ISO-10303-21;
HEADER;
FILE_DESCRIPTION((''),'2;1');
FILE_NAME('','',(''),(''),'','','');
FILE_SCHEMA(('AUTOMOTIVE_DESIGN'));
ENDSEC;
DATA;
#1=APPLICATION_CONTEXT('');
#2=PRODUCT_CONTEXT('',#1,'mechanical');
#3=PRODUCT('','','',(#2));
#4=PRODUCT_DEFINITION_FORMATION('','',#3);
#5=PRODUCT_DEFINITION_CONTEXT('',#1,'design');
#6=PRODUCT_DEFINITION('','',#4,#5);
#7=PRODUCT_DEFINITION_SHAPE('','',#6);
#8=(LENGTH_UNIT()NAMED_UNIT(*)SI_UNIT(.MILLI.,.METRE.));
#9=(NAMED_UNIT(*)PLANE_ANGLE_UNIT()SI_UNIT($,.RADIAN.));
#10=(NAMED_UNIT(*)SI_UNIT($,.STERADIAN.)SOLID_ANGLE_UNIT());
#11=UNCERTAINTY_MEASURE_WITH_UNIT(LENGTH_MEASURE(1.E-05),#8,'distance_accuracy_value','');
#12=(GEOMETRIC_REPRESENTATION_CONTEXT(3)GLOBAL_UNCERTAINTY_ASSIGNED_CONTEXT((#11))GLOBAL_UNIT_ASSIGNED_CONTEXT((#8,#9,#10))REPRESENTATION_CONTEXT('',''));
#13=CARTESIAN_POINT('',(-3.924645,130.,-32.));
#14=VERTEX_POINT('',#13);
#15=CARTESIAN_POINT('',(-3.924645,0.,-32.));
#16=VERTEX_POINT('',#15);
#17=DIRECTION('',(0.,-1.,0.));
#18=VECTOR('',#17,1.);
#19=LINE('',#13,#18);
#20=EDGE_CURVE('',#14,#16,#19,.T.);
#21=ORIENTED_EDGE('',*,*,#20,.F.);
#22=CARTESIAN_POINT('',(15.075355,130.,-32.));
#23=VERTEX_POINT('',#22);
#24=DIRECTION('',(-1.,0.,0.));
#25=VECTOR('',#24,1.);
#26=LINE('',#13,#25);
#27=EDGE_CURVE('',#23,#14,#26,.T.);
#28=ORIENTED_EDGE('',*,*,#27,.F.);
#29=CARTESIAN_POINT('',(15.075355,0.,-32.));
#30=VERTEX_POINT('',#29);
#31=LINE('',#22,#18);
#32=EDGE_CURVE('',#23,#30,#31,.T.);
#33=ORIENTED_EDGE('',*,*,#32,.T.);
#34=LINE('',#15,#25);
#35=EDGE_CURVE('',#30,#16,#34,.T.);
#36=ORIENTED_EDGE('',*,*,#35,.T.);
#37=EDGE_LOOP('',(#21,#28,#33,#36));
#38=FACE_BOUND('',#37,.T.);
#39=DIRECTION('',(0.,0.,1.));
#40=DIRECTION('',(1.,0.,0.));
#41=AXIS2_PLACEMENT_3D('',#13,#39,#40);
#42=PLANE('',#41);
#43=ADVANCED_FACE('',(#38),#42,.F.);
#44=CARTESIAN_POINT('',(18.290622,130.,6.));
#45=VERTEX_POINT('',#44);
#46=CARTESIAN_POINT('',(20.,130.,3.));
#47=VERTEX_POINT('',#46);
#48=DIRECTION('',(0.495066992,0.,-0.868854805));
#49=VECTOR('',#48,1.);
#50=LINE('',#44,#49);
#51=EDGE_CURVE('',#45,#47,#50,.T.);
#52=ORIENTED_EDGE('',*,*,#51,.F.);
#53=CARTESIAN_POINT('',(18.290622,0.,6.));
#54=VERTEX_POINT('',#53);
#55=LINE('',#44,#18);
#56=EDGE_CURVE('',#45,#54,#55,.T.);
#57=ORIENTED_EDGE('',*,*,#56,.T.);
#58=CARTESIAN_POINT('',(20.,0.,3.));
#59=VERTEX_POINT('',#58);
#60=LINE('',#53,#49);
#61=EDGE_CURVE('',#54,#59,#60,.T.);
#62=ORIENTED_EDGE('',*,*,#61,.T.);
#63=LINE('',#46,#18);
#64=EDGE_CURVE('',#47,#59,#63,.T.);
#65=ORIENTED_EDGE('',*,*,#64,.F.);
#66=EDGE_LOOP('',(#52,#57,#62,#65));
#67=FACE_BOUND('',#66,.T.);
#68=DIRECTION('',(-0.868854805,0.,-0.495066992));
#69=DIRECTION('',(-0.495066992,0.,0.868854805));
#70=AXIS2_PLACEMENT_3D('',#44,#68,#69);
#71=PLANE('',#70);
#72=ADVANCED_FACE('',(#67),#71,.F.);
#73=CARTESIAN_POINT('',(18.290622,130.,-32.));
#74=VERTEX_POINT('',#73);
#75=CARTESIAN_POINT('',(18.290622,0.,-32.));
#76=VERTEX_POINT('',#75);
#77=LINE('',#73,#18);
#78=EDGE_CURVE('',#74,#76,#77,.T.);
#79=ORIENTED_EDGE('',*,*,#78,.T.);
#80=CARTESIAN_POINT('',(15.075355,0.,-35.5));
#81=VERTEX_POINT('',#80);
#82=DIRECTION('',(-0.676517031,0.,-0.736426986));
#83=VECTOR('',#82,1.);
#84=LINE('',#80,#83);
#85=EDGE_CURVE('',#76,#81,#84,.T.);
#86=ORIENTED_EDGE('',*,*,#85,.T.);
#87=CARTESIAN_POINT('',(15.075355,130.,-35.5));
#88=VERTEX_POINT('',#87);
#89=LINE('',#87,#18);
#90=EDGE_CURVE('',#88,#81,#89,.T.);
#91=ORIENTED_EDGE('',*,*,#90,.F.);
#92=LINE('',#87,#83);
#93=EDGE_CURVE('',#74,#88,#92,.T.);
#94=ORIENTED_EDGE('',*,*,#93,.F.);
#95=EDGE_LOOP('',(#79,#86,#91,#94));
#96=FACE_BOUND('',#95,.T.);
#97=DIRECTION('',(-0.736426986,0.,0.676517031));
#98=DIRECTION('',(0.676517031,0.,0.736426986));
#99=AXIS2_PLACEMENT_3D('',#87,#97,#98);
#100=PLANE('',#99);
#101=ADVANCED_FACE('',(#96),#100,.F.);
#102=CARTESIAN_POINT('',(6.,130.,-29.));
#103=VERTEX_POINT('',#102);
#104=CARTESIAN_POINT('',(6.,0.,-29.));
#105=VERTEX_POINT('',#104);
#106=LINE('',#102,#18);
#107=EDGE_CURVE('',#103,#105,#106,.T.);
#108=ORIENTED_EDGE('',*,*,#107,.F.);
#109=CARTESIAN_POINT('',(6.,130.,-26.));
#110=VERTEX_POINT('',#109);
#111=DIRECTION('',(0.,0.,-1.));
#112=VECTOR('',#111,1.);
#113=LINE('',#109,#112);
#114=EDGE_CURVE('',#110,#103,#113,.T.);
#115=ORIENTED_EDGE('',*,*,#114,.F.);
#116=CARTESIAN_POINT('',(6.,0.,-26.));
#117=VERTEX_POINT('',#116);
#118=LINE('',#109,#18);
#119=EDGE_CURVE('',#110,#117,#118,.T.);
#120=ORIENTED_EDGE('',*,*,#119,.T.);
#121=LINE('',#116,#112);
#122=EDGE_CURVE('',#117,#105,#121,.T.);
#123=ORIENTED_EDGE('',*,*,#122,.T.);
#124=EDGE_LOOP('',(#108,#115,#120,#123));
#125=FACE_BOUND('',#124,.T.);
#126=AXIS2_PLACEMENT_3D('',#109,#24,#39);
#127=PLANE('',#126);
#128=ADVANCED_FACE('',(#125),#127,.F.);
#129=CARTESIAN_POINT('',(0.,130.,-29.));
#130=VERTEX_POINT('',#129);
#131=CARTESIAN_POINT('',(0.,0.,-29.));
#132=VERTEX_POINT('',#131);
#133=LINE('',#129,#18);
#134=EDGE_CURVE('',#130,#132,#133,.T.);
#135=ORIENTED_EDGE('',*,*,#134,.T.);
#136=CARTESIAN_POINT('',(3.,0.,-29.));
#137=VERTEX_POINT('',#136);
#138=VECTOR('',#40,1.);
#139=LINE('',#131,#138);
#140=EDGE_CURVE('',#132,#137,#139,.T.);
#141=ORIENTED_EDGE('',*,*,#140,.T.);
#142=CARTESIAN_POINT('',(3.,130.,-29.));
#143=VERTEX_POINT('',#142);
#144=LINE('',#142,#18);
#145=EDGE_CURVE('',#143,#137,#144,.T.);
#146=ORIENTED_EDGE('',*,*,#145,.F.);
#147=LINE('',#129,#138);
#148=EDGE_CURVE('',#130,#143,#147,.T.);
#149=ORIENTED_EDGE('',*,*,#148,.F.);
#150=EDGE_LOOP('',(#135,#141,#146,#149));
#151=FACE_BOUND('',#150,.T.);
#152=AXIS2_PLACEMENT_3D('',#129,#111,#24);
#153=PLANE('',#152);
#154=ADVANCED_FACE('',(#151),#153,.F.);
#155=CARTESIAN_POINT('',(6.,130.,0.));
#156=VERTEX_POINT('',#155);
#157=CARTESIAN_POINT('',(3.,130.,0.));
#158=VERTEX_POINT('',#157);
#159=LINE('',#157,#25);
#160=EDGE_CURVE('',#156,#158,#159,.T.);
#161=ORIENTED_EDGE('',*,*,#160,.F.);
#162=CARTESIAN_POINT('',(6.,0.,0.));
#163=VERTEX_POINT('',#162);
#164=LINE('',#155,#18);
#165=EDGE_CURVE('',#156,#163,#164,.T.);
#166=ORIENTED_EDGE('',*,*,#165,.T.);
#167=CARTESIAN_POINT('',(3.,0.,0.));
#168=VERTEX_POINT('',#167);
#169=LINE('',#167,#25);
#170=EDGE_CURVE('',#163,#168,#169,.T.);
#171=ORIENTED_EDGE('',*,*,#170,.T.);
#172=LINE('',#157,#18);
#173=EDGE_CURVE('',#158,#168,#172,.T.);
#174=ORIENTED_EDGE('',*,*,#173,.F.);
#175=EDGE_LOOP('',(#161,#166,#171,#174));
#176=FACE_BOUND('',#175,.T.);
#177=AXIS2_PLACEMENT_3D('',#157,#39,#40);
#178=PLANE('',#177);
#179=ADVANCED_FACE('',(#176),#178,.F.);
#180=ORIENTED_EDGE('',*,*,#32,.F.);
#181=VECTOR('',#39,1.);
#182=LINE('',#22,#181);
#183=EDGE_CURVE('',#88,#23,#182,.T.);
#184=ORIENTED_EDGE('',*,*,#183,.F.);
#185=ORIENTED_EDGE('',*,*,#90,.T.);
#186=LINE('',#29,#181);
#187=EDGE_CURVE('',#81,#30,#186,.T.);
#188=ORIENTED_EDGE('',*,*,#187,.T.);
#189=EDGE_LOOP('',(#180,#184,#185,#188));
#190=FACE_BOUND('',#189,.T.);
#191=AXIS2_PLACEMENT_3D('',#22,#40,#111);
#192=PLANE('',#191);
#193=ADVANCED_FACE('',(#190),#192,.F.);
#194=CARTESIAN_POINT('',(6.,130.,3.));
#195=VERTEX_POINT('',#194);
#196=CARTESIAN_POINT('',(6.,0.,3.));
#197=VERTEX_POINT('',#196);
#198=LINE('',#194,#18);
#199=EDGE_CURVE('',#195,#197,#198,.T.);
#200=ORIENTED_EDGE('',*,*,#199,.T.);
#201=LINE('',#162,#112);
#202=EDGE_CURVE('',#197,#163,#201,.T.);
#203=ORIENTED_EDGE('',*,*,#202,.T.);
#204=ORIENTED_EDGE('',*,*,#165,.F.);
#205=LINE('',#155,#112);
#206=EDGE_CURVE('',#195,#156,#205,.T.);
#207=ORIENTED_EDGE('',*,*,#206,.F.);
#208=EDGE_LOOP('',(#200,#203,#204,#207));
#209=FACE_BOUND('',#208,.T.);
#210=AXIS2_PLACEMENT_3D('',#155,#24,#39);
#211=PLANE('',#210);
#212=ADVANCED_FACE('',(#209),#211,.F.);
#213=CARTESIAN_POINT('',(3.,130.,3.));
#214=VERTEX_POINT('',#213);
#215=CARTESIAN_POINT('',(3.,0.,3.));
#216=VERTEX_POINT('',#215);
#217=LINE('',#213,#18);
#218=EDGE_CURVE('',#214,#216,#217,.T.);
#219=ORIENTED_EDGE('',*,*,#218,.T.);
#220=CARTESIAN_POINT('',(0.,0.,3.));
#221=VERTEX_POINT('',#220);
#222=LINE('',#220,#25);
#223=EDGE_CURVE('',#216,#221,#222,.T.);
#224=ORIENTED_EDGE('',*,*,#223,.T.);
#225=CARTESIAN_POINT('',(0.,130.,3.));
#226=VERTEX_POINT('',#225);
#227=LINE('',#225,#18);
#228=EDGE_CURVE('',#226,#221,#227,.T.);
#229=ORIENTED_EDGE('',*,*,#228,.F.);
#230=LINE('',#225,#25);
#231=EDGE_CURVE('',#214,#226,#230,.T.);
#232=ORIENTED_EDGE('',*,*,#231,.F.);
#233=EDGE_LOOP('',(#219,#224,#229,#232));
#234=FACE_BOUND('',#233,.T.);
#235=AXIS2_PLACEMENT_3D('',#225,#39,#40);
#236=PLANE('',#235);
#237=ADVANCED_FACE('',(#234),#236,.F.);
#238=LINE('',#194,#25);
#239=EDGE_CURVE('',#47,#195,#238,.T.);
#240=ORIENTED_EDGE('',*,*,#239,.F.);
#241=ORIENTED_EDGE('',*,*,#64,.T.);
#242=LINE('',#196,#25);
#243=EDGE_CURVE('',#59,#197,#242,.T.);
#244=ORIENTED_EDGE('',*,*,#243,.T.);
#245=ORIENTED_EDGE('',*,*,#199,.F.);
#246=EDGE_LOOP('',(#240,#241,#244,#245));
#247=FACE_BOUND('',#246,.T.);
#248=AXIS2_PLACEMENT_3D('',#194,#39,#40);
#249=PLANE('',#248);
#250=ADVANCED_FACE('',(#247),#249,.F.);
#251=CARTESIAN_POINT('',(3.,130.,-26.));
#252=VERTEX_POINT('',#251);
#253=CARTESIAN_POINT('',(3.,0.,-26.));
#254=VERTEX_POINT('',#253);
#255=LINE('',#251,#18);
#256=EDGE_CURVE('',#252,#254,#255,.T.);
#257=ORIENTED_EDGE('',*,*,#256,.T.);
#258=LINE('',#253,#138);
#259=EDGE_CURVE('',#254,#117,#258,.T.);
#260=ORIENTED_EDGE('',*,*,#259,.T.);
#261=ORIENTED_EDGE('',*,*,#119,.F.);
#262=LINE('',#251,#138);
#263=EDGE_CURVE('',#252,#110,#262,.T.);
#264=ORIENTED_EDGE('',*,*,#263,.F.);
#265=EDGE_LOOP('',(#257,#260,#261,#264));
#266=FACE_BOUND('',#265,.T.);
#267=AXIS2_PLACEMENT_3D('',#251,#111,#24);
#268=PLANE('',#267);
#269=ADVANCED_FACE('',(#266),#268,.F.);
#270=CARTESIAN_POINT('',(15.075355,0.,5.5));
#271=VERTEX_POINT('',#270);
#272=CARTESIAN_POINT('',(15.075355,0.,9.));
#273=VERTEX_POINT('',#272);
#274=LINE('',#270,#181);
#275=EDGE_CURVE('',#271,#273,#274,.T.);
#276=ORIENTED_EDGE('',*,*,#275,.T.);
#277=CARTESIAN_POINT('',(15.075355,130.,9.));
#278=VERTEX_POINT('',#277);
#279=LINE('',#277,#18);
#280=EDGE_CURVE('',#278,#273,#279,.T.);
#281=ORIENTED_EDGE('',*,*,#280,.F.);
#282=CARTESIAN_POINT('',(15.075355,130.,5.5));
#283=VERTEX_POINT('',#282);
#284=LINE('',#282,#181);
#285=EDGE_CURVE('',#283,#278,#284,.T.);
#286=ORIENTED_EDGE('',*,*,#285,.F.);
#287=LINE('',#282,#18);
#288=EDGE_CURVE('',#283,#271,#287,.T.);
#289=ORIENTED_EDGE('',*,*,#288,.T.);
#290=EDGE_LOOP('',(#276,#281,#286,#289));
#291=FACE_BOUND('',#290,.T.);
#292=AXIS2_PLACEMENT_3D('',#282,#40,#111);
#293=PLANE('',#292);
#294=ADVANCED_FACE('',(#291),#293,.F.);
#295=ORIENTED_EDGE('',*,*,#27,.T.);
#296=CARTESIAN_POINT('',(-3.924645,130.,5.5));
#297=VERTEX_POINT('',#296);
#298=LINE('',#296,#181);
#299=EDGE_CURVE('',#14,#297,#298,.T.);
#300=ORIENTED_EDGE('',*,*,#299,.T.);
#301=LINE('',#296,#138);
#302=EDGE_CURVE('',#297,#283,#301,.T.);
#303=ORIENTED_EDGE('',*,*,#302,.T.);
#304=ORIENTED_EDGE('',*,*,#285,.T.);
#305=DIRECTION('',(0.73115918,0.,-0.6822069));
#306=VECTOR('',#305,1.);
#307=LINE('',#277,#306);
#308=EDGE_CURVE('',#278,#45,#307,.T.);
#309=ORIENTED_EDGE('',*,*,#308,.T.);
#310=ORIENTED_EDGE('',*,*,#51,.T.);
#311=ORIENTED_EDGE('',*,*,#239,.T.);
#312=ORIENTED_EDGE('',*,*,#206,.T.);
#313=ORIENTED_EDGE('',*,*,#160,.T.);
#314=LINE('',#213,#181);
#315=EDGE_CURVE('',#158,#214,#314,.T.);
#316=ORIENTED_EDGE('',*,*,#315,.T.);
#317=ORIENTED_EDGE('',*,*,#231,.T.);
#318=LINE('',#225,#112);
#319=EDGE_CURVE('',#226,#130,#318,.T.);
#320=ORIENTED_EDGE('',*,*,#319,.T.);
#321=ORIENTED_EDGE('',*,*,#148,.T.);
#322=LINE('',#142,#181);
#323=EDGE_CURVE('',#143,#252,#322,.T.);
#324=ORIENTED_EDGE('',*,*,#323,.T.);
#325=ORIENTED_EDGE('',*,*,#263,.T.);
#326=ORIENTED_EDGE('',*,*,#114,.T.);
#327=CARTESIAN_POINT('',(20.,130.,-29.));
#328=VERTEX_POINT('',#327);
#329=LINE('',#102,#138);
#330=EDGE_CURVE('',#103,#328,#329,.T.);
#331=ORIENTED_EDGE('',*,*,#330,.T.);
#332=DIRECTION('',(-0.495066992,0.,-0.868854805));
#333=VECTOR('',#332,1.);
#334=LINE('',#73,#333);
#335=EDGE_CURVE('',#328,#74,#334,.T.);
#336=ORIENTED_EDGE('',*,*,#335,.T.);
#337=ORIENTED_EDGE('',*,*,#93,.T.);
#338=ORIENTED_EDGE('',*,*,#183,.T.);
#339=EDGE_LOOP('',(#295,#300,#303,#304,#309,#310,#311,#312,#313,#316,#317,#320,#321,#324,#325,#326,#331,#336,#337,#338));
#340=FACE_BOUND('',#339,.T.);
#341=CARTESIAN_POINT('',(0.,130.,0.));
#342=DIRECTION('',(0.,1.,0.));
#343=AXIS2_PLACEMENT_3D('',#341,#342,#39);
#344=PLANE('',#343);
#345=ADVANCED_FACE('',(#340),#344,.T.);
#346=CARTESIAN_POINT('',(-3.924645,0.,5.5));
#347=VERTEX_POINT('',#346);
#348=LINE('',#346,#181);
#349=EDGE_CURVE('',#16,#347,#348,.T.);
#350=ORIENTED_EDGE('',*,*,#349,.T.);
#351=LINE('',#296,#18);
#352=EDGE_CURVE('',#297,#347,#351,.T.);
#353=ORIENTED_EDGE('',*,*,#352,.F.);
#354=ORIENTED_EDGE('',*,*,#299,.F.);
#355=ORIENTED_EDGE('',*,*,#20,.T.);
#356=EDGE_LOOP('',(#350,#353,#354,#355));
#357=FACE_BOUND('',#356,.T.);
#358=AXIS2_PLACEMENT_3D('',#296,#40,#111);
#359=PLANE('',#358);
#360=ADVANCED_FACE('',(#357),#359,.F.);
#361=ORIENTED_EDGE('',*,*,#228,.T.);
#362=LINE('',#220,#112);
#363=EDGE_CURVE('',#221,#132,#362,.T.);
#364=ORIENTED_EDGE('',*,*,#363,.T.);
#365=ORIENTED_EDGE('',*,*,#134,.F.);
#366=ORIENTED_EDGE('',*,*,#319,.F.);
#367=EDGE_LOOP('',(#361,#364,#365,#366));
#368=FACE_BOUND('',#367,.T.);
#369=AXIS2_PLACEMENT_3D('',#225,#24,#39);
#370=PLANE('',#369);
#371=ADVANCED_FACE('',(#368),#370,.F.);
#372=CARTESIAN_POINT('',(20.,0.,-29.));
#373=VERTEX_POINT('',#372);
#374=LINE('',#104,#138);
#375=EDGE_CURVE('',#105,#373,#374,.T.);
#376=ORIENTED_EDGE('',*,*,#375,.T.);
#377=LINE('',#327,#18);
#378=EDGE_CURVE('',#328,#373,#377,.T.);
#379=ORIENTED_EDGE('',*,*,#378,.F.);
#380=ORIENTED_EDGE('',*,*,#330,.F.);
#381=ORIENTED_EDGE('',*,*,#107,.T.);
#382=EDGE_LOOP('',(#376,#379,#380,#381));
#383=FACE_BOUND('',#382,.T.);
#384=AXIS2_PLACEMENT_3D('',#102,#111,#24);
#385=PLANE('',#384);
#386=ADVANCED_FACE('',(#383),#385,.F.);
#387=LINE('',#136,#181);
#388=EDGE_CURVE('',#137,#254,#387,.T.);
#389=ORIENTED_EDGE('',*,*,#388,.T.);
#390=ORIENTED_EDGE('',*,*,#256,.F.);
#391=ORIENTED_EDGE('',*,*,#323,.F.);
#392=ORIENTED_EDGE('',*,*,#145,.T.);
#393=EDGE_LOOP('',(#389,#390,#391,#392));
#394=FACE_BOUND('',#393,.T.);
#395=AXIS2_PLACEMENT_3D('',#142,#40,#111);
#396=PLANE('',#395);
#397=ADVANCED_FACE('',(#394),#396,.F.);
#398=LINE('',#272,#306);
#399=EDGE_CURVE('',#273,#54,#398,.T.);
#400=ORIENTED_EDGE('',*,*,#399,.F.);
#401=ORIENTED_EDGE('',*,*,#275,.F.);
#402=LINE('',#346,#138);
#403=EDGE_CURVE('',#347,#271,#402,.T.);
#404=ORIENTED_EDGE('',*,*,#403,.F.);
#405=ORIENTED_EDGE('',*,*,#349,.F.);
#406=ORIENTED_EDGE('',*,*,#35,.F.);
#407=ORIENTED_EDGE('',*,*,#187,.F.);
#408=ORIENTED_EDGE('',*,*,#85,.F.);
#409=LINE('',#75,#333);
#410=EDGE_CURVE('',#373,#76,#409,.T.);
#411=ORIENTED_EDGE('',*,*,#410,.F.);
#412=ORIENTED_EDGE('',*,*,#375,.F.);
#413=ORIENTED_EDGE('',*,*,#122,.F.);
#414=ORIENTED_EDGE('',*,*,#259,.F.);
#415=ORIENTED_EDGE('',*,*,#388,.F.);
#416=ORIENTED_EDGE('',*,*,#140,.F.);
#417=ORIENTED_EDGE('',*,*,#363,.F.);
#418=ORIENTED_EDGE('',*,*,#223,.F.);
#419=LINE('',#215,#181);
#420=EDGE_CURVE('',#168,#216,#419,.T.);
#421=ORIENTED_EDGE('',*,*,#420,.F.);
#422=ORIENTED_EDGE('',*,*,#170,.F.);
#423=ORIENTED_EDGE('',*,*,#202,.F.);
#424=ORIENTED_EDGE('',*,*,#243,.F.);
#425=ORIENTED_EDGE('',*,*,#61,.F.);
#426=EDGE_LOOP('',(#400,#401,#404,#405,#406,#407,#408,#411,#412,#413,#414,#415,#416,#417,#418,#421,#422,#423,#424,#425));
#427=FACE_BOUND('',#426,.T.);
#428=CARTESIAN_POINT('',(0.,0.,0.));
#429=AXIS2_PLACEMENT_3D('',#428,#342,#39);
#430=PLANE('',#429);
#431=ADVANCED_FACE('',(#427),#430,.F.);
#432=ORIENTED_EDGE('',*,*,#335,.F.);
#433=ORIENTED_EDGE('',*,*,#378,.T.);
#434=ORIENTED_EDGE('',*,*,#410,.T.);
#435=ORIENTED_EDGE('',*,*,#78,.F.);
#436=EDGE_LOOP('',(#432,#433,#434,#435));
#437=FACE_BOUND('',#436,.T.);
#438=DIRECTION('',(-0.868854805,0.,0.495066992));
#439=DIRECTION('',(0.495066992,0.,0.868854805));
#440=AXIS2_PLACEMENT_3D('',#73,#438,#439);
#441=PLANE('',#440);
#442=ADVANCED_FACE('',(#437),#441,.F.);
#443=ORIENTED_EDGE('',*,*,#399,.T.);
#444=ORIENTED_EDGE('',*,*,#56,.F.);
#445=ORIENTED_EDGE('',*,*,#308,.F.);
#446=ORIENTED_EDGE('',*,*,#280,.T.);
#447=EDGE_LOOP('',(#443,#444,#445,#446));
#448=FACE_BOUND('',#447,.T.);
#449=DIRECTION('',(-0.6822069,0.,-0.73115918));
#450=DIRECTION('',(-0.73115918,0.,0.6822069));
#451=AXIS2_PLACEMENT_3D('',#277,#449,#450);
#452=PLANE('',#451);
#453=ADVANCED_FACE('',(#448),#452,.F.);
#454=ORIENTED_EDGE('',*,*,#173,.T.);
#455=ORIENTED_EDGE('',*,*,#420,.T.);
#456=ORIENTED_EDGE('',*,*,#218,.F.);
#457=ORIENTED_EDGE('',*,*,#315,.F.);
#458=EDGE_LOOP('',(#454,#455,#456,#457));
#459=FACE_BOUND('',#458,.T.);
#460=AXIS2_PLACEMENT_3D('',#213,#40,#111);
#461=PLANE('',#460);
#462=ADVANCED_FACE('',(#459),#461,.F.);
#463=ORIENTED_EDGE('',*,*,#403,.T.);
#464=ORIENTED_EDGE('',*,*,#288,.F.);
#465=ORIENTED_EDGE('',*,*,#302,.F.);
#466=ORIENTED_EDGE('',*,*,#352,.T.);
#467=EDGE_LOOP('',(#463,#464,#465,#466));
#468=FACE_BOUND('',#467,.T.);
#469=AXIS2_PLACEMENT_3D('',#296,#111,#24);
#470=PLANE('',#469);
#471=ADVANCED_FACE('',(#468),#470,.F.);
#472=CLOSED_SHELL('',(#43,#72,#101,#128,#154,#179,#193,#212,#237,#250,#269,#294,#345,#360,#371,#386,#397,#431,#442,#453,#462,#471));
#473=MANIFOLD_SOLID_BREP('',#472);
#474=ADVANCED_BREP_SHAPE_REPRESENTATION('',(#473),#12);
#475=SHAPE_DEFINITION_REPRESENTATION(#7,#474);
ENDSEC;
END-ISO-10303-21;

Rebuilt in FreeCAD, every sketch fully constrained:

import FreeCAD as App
import Part
import Sketcher


def add_polygon(sketch, points):
    """Adds a closed chain of lines whose ends are joined by coincident constraints."""
    first, n = sketch.GeometryCount, len(points)
    for a, b in zip(points, points[1:] + points[:1]):
        sketch.addGeometry(Part.LineSegment(App.Vector(*a, 0), App.Vector(*b, 0)), False)
    for i in range(n):
        sketch.addConstraint(Sketcher.Constraint("Coincident", first + i, 2, first + (i + 1) % n, 1))

doc = App.newDocument("Part")
body = doc.addObject("PartDesign::Body", "Body")

# Sketch on XZ plane
sketch1 = doc.addObject("Sketcher::SketchObject", "Sketch")
body.addObject(sketch1)
sketch1.AttachmentSupport = (doc.XZ_Plane, [""])
sketch1.MapMode = "FlatFace"
add_polygon(sketch1, [(0, 3), (0, -29), (3, -29), (3, -26), (6, -26), (6, -29), (20, -29), (18.290622, -32), (15.075355, -35.5), (15.075355, -32), (-3.924645, -32), (-3.924645, 5.5), (15.075355, 5.5), (15.075355, 9), (18.290622, 6), (20, 3), (6, 3), (6, 0), (3, 0), (3, 3)])  # lines 0-19
sketch1.addConstraint([
    Sketcher.Constraint("Vertical", 0),
    Sketcher.Constraint("Horizontal", 1),
    Sketcher.Constraint("Vertical", 2),
    Sketcher.Constraint("Horizontal", 3),
    Sketcher.Constraint("Vertical", 4),
    Sketcher.Constraint("Horizontal", 5),
    Sketcher.Constraint("Vertical", 8),
    Sketcher.Constraint("Horizontal", 9),
    Sketcher.Constraint("Vertical", 10),
    Sketcher.Constraint("Horizontal", 11),
    Sketcher.Constraint("Vertical", 12),
    Sketcher.Constraint("Horizontal", 15),
    Sketcher.Constraint("Vertical", 16),
    Sketcher.Constraint("Horizontal", 17),
    Sketcher.Constraint("Vertical", 18),
    Sketcher.Constraint("Horizontal", 19),
    Sketcher.Constraint("PointOnObject", 0, 2, -2),
    Sketcher.Constraint("PointOnObject", 16, 2, -1),
    Sketcher.Constraint("Horizontal", 1, 2, 4, 2),
    Sketcher.Constraint("Horizontal", 6, 2, 8, 2),
    Sketcher.Constraint("Horizontal", 15, 2, 18, 2),
    Sketcher.Constraint("Vertical", 8, 2, 11, 2),
    Sketcher.Constraint("Vertical", 6, 2, 13, 2),
    Sketcher.Constraint("Vertical", 5, 2, 14, 2),
    Sketcher.Constraint("Vertical", 4, 2, 15, 2),
    Sketcher.Constraint("Vertical", 2, 2, 17, 2),
    Sketcher.Constraint("Equal", 1, 3),
    Sketcher.Constraint("Equal", 19, 2),
    Sketcher.Constraint("Equal", 8, 12),
    Sketcher.Constraint("Equal", 4, 16),
    Sketcher.Constraint("Equal", 6, 14),
    Sketcher.Constraint("DistanceX", 1, 1, 1, 2, 3.0),
    Sketcher.Constraint("DistanceX", 5, 1, 5, 2, 14.0),
    Sketcher.Constraint("DistanceX", 9, 2, 9, 1, 19.0),
    Sketcher.Constraint("DistanceY", 0, 2, 0, 1, 32.0),
    Sketcher.Constraint("DistanceY", 8, 1, 8, 2, 3.5),
    Sketcher.Constraint("DistanceY", 10, 1, 10, 2, 37.5),
    Sketcher.Constraint("DistanceY", 6, 2, -1, 1, 32.0),
    Sketcher.Constraint("Distance", 6, 3.452821),
    Sketcher.Constraint("Distance", 7, 4.752678),
])
pad1 = doc.addObject("PartDesign::Pad", "Pad")
body.addObject(pad1)
pad1.Profile = sketch1
pad1.Length = 130
pad1.Reversed = True

doc.recompute()
